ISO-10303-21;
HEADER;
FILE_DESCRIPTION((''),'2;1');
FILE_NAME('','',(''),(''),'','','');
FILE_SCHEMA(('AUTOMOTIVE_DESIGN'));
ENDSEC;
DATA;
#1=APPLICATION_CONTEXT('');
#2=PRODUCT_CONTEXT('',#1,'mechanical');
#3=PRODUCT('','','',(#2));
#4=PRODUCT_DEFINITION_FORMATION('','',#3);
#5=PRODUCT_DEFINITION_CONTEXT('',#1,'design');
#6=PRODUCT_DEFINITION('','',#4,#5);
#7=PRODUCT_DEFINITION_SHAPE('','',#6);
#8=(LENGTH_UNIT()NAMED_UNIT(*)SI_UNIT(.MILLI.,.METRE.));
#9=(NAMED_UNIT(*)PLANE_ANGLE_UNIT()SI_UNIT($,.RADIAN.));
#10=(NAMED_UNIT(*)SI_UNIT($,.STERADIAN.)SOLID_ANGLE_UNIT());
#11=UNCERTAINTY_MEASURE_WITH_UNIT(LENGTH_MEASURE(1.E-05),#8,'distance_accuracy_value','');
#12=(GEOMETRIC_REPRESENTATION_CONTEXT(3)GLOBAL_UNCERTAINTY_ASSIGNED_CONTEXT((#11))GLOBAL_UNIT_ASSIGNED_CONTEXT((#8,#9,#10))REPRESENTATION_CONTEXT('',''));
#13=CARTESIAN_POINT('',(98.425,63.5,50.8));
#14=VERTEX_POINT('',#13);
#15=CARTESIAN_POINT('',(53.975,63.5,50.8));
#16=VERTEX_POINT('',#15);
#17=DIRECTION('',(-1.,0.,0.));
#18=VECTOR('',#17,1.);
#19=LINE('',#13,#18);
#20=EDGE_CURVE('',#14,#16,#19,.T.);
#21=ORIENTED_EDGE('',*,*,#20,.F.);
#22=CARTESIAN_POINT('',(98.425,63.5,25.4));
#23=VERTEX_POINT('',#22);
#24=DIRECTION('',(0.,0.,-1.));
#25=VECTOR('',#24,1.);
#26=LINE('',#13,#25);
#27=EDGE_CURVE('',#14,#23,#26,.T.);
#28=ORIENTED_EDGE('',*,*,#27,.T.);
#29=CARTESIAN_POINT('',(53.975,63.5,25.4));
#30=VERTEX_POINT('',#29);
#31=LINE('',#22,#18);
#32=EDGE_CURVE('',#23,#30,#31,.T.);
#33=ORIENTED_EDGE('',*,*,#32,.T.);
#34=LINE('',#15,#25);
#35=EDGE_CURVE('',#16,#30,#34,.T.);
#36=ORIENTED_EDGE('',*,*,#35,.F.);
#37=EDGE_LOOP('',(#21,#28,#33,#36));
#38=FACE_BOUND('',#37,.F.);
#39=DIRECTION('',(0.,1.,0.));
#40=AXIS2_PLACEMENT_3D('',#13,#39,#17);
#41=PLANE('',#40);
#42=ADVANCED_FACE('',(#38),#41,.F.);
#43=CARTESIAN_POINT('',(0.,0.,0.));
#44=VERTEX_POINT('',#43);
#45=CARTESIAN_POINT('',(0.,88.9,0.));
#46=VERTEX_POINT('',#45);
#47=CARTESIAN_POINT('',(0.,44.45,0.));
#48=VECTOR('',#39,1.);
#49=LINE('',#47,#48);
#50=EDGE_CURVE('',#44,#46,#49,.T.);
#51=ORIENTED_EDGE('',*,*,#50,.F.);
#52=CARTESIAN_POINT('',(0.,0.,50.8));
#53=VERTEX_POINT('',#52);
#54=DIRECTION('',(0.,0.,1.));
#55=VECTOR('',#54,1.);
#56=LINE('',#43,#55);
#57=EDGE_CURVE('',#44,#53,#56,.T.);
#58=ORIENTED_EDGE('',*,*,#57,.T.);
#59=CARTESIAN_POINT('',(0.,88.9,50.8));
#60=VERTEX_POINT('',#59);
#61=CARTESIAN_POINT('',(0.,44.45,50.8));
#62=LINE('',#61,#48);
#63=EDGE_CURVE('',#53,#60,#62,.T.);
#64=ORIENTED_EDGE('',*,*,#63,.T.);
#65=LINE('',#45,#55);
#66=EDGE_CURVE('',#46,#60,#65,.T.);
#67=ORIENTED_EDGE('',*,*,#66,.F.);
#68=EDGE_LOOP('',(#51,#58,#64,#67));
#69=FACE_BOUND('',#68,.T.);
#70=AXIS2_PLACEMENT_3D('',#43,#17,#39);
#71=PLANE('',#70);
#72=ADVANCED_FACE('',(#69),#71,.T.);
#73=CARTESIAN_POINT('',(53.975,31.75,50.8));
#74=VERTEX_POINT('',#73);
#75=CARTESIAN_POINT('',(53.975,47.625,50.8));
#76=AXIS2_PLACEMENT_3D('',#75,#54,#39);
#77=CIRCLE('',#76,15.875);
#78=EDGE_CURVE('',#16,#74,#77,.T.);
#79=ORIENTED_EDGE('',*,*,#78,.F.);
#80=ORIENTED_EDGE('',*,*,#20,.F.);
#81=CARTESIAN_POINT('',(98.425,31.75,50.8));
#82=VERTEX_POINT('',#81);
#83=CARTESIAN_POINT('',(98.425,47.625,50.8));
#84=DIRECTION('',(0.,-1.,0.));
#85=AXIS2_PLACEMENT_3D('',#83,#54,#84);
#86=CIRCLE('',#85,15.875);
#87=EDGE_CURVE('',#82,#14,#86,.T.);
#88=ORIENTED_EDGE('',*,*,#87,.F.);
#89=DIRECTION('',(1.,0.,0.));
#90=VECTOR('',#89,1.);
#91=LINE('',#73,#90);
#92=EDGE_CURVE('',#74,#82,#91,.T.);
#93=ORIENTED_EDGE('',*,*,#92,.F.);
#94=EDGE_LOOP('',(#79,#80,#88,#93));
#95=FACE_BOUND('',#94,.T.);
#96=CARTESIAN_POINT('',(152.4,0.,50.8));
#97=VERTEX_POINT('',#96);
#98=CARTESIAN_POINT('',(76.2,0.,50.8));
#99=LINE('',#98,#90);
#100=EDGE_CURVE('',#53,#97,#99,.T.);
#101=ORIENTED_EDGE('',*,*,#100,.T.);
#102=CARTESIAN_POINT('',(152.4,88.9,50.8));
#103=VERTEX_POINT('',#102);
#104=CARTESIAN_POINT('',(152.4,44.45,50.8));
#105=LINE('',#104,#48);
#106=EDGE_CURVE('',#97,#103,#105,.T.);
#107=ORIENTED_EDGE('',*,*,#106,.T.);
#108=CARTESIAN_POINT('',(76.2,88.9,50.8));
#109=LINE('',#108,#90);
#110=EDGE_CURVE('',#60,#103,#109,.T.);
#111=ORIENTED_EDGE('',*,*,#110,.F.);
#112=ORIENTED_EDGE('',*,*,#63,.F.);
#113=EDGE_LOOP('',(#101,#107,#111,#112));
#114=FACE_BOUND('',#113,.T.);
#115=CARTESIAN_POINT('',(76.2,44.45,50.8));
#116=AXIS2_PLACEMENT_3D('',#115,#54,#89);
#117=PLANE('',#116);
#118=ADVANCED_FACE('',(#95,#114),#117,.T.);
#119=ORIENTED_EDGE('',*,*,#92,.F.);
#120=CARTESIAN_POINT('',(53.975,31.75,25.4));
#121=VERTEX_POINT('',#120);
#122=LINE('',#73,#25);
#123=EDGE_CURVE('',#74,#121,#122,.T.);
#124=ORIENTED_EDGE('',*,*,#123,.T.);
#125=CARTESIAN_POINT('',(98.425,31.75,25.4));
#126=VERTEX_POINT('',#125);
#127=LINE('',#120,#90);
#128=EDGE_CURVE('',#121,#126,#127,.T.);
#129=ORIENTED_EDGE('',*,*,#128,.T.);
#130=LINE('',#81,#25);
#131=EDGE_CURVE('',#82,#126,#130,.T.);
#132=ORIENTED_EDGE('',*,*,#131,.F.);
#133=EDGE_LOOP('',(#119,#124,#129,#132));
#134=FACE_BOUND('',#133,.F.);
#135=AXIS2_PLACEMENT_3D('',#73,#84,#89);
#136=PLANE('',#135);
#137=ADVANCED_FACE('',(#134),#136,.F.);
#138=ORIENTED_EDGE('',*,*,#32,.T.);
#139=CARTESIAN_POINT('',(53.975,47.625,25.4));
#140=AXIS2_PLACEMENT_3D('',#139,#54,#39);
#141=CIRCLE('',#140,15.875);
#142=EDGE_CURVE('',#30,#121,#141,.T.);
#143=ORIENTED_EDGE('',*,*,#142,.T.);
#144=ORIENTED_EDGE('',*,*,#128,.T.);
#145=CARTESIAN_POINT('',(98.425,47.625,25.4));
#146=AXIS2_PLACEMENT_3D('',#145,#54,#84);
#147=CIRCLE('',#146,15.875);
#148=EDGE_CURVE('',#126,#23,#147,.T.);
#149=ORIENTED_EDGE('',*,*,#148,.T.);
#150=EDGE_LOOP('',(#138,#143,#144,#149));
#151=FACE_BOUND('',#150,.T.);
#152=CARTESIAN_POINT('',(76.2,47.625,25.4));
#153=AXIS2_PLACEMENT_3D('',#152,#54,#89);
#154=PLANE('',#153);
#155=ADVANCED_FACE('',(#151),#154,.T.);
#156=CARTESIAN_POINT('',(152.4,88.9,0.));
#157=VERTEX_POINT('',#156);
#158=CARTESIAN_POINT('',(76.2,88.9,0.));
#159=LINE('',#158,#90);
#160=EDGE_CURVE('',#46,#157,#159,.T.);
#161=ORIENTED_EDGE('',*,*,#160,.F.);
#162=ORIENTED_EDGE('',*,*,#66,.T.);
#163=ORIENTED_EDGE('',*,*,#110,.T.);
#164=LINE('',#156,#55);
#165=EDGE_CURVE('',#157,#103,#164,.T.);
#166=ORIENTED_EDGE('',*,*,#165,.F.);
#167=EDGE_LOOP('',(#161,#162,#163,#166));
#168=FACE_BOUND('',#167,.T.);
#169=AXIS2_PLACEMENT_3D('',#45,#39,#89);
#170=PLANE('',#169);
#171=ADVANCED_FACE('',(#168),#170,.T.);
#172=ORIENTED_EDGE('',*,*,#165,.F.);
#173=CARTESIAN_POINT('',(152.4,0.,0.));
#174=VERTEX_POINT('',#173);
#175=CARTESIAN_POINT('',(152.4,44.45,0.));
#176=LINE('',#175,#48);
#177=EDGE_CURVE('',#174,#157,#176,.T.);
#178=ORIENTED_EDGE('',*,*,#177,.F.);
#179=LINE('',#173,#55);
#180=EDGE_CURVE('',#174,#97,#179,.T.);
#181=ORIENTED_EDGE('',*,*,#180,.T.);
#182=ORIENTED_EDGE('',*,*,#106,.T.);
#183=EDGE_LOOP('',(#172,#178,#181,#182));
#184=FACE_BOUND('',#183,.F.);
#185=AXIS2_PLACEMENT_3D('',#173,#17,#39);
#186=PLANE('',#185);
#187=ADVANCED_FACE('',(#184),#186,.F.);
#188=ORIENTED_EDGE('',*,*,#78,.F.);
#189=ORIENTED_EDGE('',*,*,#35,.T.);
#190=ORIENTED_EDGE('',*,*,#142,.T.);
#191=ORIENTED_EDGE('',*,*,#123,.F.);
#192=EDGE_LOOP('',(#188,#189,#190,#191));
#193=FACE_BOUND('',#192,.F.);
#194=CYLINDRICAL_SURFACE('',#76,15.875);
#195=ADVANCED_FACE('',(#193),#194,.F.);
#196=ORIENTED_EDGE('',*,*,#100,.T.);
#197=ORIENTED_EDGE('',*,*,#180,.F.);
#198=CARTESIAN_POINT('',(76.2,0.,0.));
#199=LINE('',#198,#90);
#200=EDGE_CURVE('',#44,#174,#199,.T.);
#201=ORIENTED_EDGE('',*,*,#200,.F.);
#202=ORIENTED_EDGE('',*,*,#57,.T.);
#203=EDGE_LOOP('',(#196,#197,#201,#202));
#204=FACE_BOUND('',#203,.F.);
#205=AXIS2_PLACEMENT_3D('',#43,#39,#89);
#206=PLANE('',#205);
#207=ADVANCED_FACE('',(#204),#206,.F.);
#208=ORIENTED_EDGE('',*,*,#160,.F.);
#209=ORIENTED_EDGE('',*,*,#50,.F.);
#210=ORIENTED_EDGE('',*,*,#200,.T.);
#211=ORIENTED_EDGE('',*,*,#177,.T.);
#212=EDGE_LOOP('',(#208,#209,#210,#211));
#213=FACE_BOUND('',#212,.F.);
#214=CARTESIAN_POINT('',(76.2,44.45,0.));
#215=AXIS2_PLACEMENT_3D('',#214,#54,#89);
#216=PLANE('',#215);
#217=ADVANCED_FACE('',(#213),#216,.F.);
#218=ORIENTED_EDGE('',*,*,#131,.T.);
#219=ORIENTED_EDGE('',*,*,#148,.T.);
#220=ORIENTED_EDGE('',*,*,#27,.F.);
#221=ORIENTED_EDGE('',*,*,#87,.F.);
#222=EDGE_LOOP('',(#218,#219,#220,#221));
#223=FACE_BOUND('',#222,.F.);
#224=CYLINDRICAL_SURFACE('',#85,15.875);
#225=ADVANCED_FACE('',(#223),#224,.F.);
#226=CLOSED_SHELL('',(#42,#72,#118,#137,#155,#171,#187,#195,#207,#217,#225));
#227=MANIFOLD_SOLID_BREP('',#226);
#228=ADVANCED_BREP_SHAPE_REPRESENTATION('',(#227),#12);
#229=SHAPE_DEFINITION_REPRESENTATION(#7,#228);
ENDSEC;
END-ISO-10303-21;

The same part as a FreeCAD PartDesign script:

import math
import FreeCAD as App
import Part
import Sketcher

V = App.Vector
Q = App.Units.Quantity


def add_polygon(sketch, points):
    """Adds a closed chain of lines whose ends are joined by coincident constraints."""
    first, n = sketch.GeometryCount, len(points)
    for a, b in zip(points, points[1:] + points[:1]):
        sketch.addGeometry(Part.LineSegment(App.Vector(*a, 0), App.Vector(*b, 0)), False)
    for i in range(n):
        sketch.addConstraint(Sketcher.Constraint("Coincident", first + i, 2, first + (i + 1) % n, 1))

doc = App.newDocument("Part")
body = doc.addObject("PartDesign::Body", "Body")

# Sketch on XY plane
sketch1 = body.newObject("Sketcher::SketchObject", "Sketch")
sketch1.AttachmentSupport = (doc.getObject("XY_Plane"), [""])
sketch1.MapMode = "FlatFace"
add_polygon(sketch1, [(0, 89), (0, 0), (152, 0), (152, 89)])  # lines 0-3
sketch1.addConstraint([
    Sketcher.Constraint("Vertical", 0),
    Sketcher.Constraint("Horizontal", 1),
    Sketcher.Constraint("Vertical", 2),
    Sketcher.Constraint("Horizontal", 3),
    Sketcher.Constraint("Coincident", 0, 2, -1, 1),
    Sketcher.Constraint("DistanceX", 1, 1, 1, 2, Q("6 in")),
    Sketcher.Constraint("DistanceY", 0, 2, 0, 1, Q("3.5 in")),
])
pad1 = body.newObject("PartDesign::Pad", "Pad")
pad1.Profile = sketch1
pad1.Length = Q("2 in")

# Sketch on XY plane
sketch2 = body.newObject("Sketcher::SketchObject", "Sketch001")
sketch2.AttachmentSupport = (doc.getObject("XY_Plane"), [""])
sketch2.MapMode = "FlatFace"
sketch2.AttachmentOffset = App.Placement(V(0, 0, 2 * 25.4), App.Rotation())
sketch2.addGeometry([
    Part.ArcOfCircle(Part.Circle(V(54, 48, 0), V(0, 0, 1), 16), math.radians(90), math.radians(270)),
    Part.LineSegment(V(54, 32, 0), V(98, 32, 0)),
    Part.ArcOfCircle(Part.Circle(V(98, 48, 0), V(0, 0, 1), 16), math.radians(-90), math.radians(90)),
    Part.LineSegment(V(98, 64, 0), V(54, 64, 0)),
], False)
sketch2.addConstraint([
    Sketcher.Constraint("Tangent", 0, 2, 1, 1),
    Sketcher.Constraint("Tangent", 1, 2, 2, 1),
    Sketcher.Constraint("Tangent", 2, 2, 3, 1),
    Sketcher.Constraint("Tangent", 3, 2, 0, 1),
    Sketcher.Constraint("Horizontal", 1),
    Sketcher.Constraint("Horizontal", 3),
    Sketcher.Constraint("Radius", 0, Q("0.625 in")),
    Sketcher.Constraint("DistanceX", 1, 1, 1, 2, Q("1.75 in")),
    Sketcher.Constraint("DistanceY", -1, 1, 2, 2, Q("2.5 in")),
    Sketcher.Constraint("DistanceX", -1, 1, 0, 3, Q("2.125 in")),
])
pocket1 = body.newObject("PartDesign::Pocket", "Pocket")
pocket1.Profile = sketch2
pocket1.Length = Q("1 in")

doc.recompute()
